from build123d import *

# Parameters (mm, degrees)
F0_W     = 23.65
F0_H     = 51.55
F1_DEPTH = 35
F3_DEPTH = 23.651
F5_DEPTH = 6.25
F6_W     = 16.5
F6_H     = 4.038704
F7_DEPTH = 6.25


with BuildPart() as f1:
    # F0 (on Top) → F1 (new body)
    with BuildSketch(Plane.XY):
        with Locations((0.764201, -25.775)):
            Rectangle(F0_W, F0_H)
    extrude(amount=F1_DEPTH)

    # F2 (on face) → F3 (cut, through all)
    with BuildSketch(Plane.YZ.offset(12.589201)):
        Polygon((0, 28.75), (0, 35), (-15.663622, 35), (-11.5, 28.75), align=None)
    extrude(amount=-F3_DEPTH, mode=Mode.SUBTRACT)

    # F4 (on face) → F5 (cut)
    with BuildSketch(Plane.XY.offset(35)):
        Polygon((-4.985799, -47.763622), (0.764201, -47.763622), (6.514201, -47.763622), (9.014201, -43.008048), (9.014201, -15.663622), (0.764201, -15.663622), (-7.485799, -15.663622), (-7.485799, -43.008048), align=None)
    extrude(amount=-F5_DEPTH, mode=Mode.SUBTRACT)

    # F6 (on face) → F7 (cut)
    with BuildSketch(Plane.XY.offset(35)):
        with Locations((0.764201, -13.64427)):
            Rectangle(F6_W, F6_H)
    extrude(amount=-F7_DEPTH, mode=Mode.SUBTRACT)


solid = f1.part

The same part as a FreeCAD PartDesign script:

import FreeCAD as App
import Part
import Sketcher
from FreeCAD import Vector


def add_polygon(sketch, points):
    """Adds a closed chain of lines whose ends are joined by coincident constraints."""
    first, n = sketch.GeometryCount, len(points)
    for a, b in zip(points, points[1:] + points[:1]):
        sketch.addGeometry(Part.LineSegment(App.Vector(*a, 0), App.Vector(*b, 0)), False)
    for i in range(n):
        sketch.addConstraint(Sketcher.Constraint("Coincident", first + i, 2, first + (i + 1) % n, 1))

doc = App.newDocument("Part")
body = doc.addObject("PartDesign::Body", "Body")

sketch1 = body.newObject("Sketcher::SketchObject", "Sketch")
sketch1.AttachmentSupport = (doc.getObject("XY_Plane"), [""])
sketch1.MapMode = "FlatFace"
add_polygon(sketch1, [(-11, 0), (-11, -52), (13, -52), (13, 0)])
sketch1.addConstraint(Sketcher.Constraint("Vertical", 0))
sketch1.addConstraint(Sketcher.Constraint("Horizontal", 1))
sketch1.addConstraint(Sketcher.Constraint("Vertical", 2))
sketch1.addConstraint(Sketcher.Constraint("Horizontal", 3))
sketch1.addConstraint(Sketcher.Constraint("PointOnObject", 2, 2, -1))
sketch1.addConstraint(Sketcher.Constraint("DistanceX", 1, 1, 1, 2, 23.65))
sketch1.addConstraint(Sketcher.Constraint("DistanceY", 0, 2, 0, 1, 51.55))
sketch1.addConstraint(Sketcher.Constraint("DistanceX", 0, 2, -1, 1, 11.060799))
pad1 = body.newObject("PartDesign::Pad", "Pad")
pad1.Profile = sketch1
pad1.Length = 35

sketch2 = body.newObject("Sketcher::SketchObject", "Sketch001")
sketch2.AttachmentSupport = (doc.getObject("YZ_Plane"), [""])
sketch2.MapMode = "FlatFace"
sketch2.AttachmentOffset = App.Placement(Vector(0, 0, 12.589201), App.Rotation())
add_polygon(sketch2, [(0, 29), (0, 35), (-16, 35), (-12, 29)])
sketch2.addConstraint(Sketcher.Constraint("Vertical", 0))
sketch2.addConstraint(Sketcher.Constraint("Horizontal", 1))
sketch2.addConstraint(Sketcher.Constraint("Horizontal", 3))
sketch2.addConstraint(Sketcher.Constraint("PointOnObject", 0, 2, -2))
sketch2.addConstraint(Sketcher.Constraint("DistanceX", 3, 1, 3, 2, 11.5))
sketch2.addConstraint(Sketcher.Constraint("DistanceY", -1, 1, 0, 2, 35.0))
sketch2.addConstraint(Sketcher.Constraint("DistanceY", 0, 1, 0, 2, 6.25))
sketch2.addConstraint(Sketcher.Constraint("DistanceX", 1, 2, 1, 1, 15.663622))
pocket1 = body.newObject("PartDesign::Pocket", "Pocket")
pocket1.Profile = sketch2
pocket1.Type = "ThroughAll"

sketch3 = body.newObject("Sketcher::SketchObject", "Sketch002")
sketch3.AttachmentSupport = (doc.getObject("XY_Plane"), [""])
sketch3.MapMode = "FlatFace"
sketch3.AttachmentOffset = App.Placement(Vector(0, 0, 35), App.Rotation())
add_polygon(sketch3, [(-5, -48), (7, -48), (9, -43), (9, -16), (-7, -16), (-7, -43)])
sketch3.addConstraint(Sketcher.Constraint("Horizontal", 0))
sketch3.addConstraint(Sketcher.Constraint("Vertical", 2))
sketch3.addConstraint(Sketcher.Constraint("Horizontal", 3))
sketch3.addConstraint(Sketcher.Constraint("Vertical", 4))
sketch3.addConstraint(Sketcher.Constraint("Horizontal", 1, 2, 4, 2))
sketch3.addConstraint(Sketcher.Constraint("Equal", 1, 5))
sketch3.addConstraint(Sketcher.Constraint("DistanceX", 0, 1, 0, 2, 11.5))
sketch3.addConstraint(Sketcher.Constraint("DistanceX", 3, 2, 3, 1, 16.5))
sketch3.addConstraint(Sketcher.Constraint("DistanceY", 0, 2, 2, 2, 32.1))
sketch3.addConstraint(Sketcher.Constraint("DistanceX", -1, 1, 0, 2, 6.514201))
sketch3.addConstraint(Sketcher.Constraint("Distance", 1, 5.372661))
sketch3.addConstraint(Sketcher.Constraint("DistanceY", 0, 2, -1, 1, 47.763622))
pocket2 = body.newObject("PartDesign::Pocket", "Pocket001")
pocket2.Profile = sketch3
pocket2.Length = 6.25

sketch4 = body.newObject("Sketcher::SketchObject", "Sketch003")
sketch4.AttachmentSupport = (doc.getObject("XY_Plane"), [""])
sketch4.MapMode = "FlatFace"
sketch4.AttachmentOffset = App.Placement(Vector(0, 0, 35), App.Rotation())
add_polygon(sketch4, [(-7.5, -11.6), (-7.5, -15.7), (9, -15.7), (9, -11.6)])
sketch4.addConstraint(Sketcher.Constraint("Vertical", 0))
sketch4.addConstraint(Sketcher.Constraint("Horizontal", 1))
sketch4.addConstraint(Sketcher.Constraint("Vertical", 2))
sketch4.addConstraint(Sketcher.Constraint("Horizontal", 3))
sketch4.addConstraint(Sketcher.Constraint("DistanceX", 1, 1, 1, 2, 16.5))
sketch4.addConstraint(Sketcher.Constraint("DistanceX", 0, 2, -1, 1, 7.485799))
sketch4.addConstraint(Sketcher.Constraint("DistanceY", 0, 2, 0, 1, 4.038704))
sketch4.addConstraint(Sketcher.Constraint("DistanceY", 0, 2, -1, 1, 15.663622))
pocket3 = body.newObject("PartDesign::Pocket", "Pocket002")
pocket3.Profile = sketch4
pocket3.Length = 6.25

doc.recompute()
